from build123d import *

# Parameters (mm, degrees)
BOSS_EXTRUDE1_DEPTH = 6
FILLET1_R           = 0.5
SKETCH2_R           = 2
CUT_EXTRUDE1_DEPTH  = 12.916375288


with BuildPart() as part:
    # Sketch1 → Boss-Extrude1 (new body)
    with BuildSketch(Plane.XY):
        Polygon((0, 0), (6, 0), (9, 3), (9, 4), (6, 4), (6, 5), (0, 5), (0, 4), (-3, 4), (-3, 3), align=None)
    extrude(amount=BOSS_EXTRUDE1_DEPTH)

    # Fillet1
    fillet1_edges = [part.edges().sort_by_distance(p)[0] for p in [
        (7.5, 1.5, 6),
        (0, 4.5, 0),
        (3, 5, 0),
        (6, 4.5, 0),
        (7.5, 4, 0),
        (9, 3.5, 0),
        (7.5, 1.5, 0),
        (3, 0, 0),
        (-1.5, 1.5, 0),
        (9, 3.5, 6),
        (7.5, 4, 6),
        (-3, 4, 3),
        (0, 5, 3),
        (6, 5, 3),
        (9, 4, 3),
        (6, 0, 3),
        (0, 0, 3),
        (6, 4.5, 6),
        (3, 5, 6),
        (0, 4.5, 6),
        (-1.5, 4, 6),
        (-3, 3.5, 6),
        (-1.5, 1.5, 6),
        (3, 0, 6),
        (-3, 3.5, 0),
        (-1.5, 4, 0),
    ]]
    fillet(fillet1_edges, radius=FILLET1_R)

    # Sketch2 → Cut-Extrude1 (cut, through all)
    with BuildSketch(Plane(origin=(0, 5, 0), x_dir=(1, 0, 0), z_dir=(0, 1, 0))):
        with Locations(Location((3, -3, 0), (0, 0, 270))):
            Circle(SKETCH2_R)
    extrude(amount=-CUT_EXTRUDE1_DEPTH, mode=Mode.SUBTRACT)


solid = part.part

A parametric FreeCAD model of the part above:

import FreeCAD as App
import Part
import Sketcher

V = App.Vector


def edges_at(feature, points):
    """Names of the edges that pass closest to the given points."""
    edges = feature.Shape.Edges
    near = lambda p: min(range(len(edges)), key=lambda i: edges[i].distToShape(Part.Vertex(*p))[0])
    return sorted({f"Edge{near(p) + 1}" for p in points})


def add_polygon(sketch, points):
    """Adds a closed chain of lines whose ends are joined by coincident constraints."""
    first, n = sketch.GeometryCount, len(points)
    for a, b in zip(points, points[1:] + points[:1]):
        sketch.addGeometry(Part.LineSegment(App.Vector(*a, 0), App.Vector(*b, 0)), False)
    for i in range(n):
        sketch.addConstraint(Sketcher.Constraint("Coincident", first + i, 2, first + (i + 1) % n, 1))

doc = App.newDocument("Part")
params = doc.addObject("Spreadsheet::Sheet", "Params")
for row, (alias, value) in enumerate([
    ("sketch1_width", "6 mm"),
    ("sketch1_width2", "3 mm"),
    ("sketch1_height", "1 mm"),
    ("pad1_length", "6 mm"),
    ("fillet_radius", "0.5 mm"),
    ("sketch2_diameter", "4 mm"),
], start=1):
    params.set(f"A{row}", alias)
    params.set(f"B{row}", "=" + value)
    params.setAlias(f"B{row}", alias)

body = doc.addObject("PartDesign::Body", "Body")

# Sketch on XY plane
sketch1 = body.newObject("Sketcher::SketchObject", "Sketch")
sketch1.AttachmentSupport = (doc.getObject("XY_Plane"), [""])
sketch1.MapMode = "FlatFace"
add_polygon(sketch1, [(0, 0), (6, 0), (9, 3), (9, 4), (6, 4), (6, 5), (0, 5), (0, 4), (-3, 4), (-3, 3)])  # lines 0-9
sketch1.addConstraint(Sketcher.Constraint("Horizontal", 0))
sketch1.addConstraint(Sketcher.Constraint("Vertical", 2))
sketch1.addConstraint(Sketcher.Constraint("Horizontal", 3))
sketch1.addConstraint(Sketcher.Constraint("Vertical", 4))
sketch1.addConstraint(Sketcher.Constraint("Horizontal", 5))
sketch1.addConstraint(Sketcher.Constraint("Vertical", 6))
sketch1.addConstraint(Sketcher.Constraint("Horizontal", 7))
sketch1.addConstraint(Sketcher.Constraint("Vertical", 8))
sketch1.addConstraint(Sketcher.Constraint("Coincident", 9, 2, -1, 1))
sketch1.addConstraint(Sketcher.Constraint("PointOnObject", 5, 2, -2))
sketch1.addConstraint(Sketcher.Constraint("Perpendicular", 1, 9))
sketch1.addConstraint(Sketcher.Constraint("Horizontal", 3, 2, 6, 2))
sketch1.addConstraint(Sketcher.Constraint("Horizontal", 1, 2, 8, 2))
sketch1.addConstraint(Sketcher.Constraint("Vertical", 0, 2, 3, 2))
sketch1.addConstraint(Sketcher.Constraint("Equal", 3, 7))
sketch1.addConstraint(Sketcher.Constraint("Equal", 2, 4))
sketch1.addConstraint(Sketcher.Constraint("DistanceX", 0, 1, 0, 2, 6.0))
sketch1.addConstraint(Sketcher.Constraint("DistanceX", 3, 2, 3, 1, 3.0))
sketch1.addConstraint(Sketcher.Constraint("DistanceY", 2, 1, 2, 2, 1.0))
sketch1.setExpression("Constraints[26]", "Params.sketch1_width")
sketch1.setExpression("Constraints[27]", "Params.sketch1_width2")
sketch1.setExpression("Constraints[28]", "Params.sketch1_height")
pad1 = body.newObject("PartDesign::Pad", "Pad")
pad1.Profile = sketch1
pad1.setExpression("Length", "Params.pad1_length")
doc.recompute()

fillet = body.newObject("PartDesign::Fillet", "Fillet")
fillet.Base = (pad1, edges_at(pad1, [
    (7.5, 1.5, 6),
    (0, 4.5, 0),
    (3, 5, 0),
    (6, 4.5, 0),
    (7.5, 4, 0),
    (9, 3.5, 0),
    (7.5, 1.5, 0),
    (3, 0, 0),
    (-1.5, 1.5, 0),
    (9, 3.5, 6),
    (7.5, 4, 6),
    (-3, 4, 3),
    (0, 5, 3),
    (6, 5, 3),
    (9, 4, 3),
    (6, 0, 3),
    (0, 0, 3),
    (6, 4.5, 6),
    (3, 5, 6),
    (0, 4.5, 6),
    (-1.5, 4, 6),
    (-3, 3.5, 6),
    (-1.5, 1.5, 6),
    (3, 0, 6),
    (-3, 3.5, 0),
    (-1.5, 4, 0),
]))
fillet.setExpression("Radius", "Params.fillet_radius")

# Sketch on XZ plane
sketch2 = body.newObject("Sketcher::SketchObject", "Sketch001")
sketch2.AttachmentSupport = (doc.getObject("XZ_Plane"), [""])
sketch2.MapMode = "FlatFace"
sketch2.AttachmentOffset = App.Placement(V(0, 0, -5), App.Rotation())
sketch2.addGeometry(Part.Circle(V(3, 3, 0), V(0, 0, 1), 2), False)
sketch2.addConstraint(Sketcher.Constraint("Diameter", 0, 4.0))
sketch2.addConstraint(Sketcher.Constraint("DistanceX", -1, 1, 0, 3, 3.0))
sketch2.addConstraint(Sketcher.Constraint("DistanceY", -1, 1, 0, 3, 3.0))
sketch2.setExpression("Constraints[0]", "Params.sketch2_diameter")
pocket1 = body.newObject("PartDesign::Pocket", "Pocket")
pocket1.Profile = sketch2
pocket1.Type = "ThroughAll"
pocket1.Reversed = True

doc.recompute()
